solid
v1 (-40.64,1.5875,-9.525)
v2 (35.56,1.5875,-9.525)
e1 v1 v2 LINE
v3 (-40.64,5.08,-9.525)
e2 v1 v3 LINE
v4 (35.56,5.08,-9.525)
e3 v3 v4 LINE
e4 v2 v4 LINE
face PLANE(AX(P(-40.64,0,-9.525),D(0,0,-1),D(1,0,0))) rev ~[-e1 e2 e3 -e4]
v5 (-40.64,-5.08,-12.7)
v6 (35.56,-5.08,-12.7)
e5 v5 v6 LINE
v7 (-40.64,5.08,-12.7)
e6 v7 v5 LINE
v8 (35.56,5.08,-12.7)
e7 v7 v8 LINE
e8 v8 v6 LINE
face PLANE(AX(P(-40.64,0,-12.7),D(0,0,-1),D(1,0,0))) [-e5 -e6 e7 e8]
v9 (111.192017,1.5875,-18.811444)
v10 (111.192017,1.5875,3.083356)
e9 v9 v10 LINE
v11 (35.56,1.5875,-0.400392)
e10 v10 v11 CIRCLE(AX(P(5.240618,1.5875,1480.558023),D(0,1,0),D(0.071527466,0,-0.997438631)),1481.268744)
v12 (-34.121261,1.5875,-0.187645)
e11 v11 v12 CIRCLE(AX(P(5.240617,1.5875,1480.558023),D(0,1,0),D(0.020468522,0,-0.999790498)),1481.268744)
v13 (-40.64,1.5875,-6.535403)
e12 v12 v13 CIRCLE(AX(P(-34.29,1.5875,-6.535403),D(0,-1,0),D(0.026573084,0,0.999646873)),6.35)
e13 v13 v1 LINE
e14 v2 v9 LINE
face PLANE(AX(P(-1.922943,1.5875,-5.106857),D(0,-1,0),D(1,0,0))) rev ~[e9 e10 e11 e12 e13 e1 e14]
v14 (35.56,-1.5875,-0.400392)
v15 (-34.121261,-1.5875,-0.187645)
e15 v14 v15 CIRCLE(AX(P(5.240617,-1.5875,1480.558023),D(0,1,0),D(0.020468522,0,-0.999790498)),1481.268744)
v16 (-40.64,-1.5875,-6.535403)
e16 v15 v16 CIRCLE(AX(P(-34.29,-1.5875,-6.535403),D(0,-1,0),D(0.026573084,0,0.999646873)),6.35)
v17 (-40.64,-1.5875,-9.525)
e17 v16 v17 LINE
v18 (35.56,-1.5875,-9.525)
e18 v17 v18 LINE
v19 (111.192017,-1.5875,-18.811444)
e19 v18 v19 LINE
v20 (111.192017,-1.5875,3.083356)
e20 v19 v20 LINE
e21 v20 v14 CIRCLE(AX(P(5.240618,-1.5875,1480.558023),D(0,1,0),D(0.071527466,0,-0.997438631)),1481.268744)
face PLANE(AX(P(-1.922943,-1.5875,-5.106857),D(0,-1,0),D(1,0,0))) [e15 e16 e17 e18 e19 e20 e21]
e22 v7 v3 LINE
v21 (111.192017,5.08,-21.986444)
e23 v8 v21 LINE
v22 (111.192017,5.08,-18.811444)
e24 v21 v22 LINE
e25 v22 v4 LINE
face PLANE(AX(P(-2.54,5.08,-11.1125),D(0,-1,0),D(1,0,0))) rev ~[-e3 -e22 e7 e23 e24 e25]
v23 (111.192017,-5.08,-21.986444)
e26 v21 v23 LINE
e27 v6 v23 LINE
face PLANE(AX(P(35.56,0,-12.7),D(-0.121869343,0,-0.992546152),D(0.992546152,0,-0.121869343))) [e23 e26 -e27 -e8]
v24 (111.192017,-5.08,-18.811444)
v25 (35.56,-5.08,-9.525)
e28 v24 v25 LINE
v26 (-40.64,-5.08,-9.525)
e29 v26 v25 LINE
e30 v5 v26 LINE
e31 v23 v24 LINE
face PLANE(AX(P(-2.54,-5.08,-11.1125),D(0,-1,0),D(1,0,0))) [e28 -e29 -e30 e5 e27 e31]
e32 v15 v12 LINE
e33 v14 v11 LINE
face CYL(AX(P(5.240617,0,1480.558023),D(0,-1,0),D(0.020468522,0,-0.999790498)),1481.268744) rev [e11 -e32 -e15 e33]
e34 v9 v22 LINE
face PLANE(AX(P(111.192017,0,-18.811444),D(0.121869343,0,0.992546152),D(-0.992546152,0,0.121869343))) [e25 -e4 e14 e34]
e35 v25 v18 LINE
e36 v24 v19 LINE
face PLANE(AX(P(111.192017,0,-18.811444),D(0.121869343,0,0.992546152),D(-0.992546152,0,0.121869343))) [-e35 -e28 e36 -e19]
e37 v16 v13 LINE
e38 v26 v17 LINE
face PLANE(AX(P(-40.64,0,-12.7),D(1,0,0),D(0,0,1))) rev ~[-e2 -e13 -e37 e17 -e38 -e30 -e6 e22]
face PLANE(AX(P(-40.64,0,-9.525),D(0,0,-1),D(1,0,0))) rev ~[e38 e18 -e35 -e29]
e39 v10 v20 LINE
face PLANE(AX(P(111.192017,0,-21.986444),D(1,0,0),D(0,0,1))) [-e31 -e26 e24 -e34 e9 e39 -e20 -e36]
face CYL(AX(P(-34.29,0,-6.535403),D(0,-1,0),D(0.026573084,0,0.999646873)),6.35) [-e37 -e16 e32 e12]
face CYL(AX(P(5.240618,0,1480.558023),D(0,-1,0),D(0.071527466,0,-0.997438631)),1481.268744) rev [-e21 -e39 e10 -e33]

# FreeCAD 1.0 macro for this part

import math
import FreeCAD as App
import Part
import Sketcher
Q = App.Units.Quantity


def add_polygon(sketch, points):
    """Adds a closed chain of lines whose ends are joined by coincident constraints."""
    first, n = sketch.GeometryCount, len(points)
    for a, b in zip(points, points[1:] + points[:1]):
        sketch.addGeometry(Part.LineSegment(App.Vector(*a, 0), App.Vector(*b, 0)), False)
    for i in range(n):
        sketch.addConstraint(Sketcher.Constraint("Coincident", first + i, 2, first + (i + 1) % n, 1))

doc = App.newDocument("Part")
body = doc.addObject("PartDesign::Body", "Body")

# Sketch on XZ plane
sketch1 = doc.addObject("Sketcher::SketchObject", "Sketch")
body.addObject(sketch1)
sketch1.AttachmentSupport = (doc.XZ_Plane, [""])
sketch1.MapMode = "FlatFace"
add_polygon(sketch1, [(-40.64, -9.525), (-40.64, -12.7), (35.56, -12.7), (111.192017, -21.986444), (111.192017, -18.811444), (35.56, -9.525)])  # lines 0-5
sketch1.addConstraint(Sketcher.Constraint("Vertical", 0))
sketch1.addConstraint(Sketcher.Constraint("Horizontal", 1))
sketch1.addConstraint(Sketcher.Constraint("Vertical", 3))
sketch1.addConstraint(Sketcher.Constraint("Horizontal", 5))
sketch1.addConstraint(Sketcher.Constraint("Parallel", 2, 4))
sketch1.addConstraint(Sketcher.Constraint("Vertical", 1, 2, 4, 2))
sketch1.addConstraint(Sketcher.Constraint("DistanceX", 1, 1, 1, 2, Q("3 in")))
sketch1.addConstraint(Sketcher.Constraint("Distance", 2, Q("3 in")))
sketch1.addConstraint(Sketcher.Constraint("Angle", 2, Q("-7 deg")))
sketch1.addConstraint(Sketcher.Constraint("DistanceX", 0, 2, -1, 1, Q("1.6 in")))
sketch1.addConstraint(Sketcher.Constraint("DistanceY", 0, 2, -1, 1, Q("0.5 in")))
sketch1.addConstraint(Sketcher.Constraint("DistanceY", 0, 2, 0, 1, Q("0.125 in")))
pad1 = doc.addObject("PartDesign::Pad", "Pad")
body.addObject(pad1)
pad1.Profile = sketch1
pad1.Length = Q("0.4 in")
pad1.Midplane = True

# Sketch on XZ plane
sketch2 = doc.addObject("Sketcher::SketchObject", "Sketch001")
body.addObject(sketch2)
sketch2.AttachmentSupport = (doc.XZ_Plane, [""])
sketch2.MapMode = "FlatFace"
sketch2.addGeometry(Part.LineSegment(App.Vector(-40.64, -6.535403, 0), App.Vector(-40.64, -9.525, 0)), False)
sketch2.addGeometry(Part.LineSegment(App.Vector(-40.64, -9.525, 0), App.Vector(35.56, -9.525, 0)), False)
sketch2.addGeometry(Part.LineSegment(App.Vector(35.56, -9.525, 0), App.Vector(111.192017, -18.811444, 0)), False)
sketch2.addGeometry(Part.LineSegment(App.Vector(111.192017, -18.811444, 0), App.Vector(111.192017, 3.083356, 0)), False)
sketch2.addGeometry(Part.ArcOfCircle(Part.Circle(App.Vector(5.240618, 1480.558023, 0), App.Vector(0, 0, 1), 1481.268744), math.radians(-88.827158), math.radians(-85.898275)), False)
sketch2.addGeometry(Part.ArcOfCircle(Part.Circle(App.Vector(5.240617, 1480.558023, 0), App.Vector(0, 0, 1), 1481.268744), math.radians(-91.522705), math.radians(-88.827158)), False)
sketch2.addGeometry(Part.ArcOfCircle(Part.Circle(App.Vector(-34.29, -6.535403, 0), App.Vector(0, 0, 1), 6.35), math.radians(88.477295), math.radians(180)), False)
sketch2.addConstraint(Sketcher.Constraint("Coincident", 0, 2, 1, 1))
sketch2.addConstraint(Sketcher.Constraint("Coincident", 1, 2, 2, 1))
sketch2.addConstraint(Sketcher.Constraint("Coincident", 2, 2, 3, 1))
sketch2.addConstraint(Sketcher.Constraint("Coincident", 3, 2, 4, 2))
sketch2.addConstraint(Sketcher.Constraint("Coincident", 4, 1, 5, 2))
sketch2.addConstraint(Sketcher.Constraint("Tangent", 5, 1, 6, 1))
sketch2.addConstraint(Sketcher.Constraint("Tangent", 6, 2, 0, 1))
sketch2.addConstraint(Sketcher.Constraint("Vertical", 0))
sketch2.addConstraint(Sketcher.Constraint("Horizontal", 1))
sketch2.addConstraint(Sketcher.Constraint("Vertical", 3))
sketch2.addConstraint(Sketcher.Constraint("Coincident", 5, 3, 4, 3))
sketch2.addConstraint(Sketcher.Constraint("Vertical", 1, 2, 4, 1))
sketch2.addConstraint(Sketcher.Constraint("DistanceX", 1, 1, 1, 2, Q("3 in")))
sketch2.addConstraint(Sketcher.Constraint("Radius", 6, Q("0.25 in")))
sketch2.addConstraint(Sketcher.Constraint("Distance", 2, Q("3 in")))
sketch2.addConstraint(Sketcher.Constraint("Angle", 2, Q("-7 deg")))
sketch2.addConstraint(Sketcher.Constraint("DistanceX", 0, 2, -1, 1, Q("1.6 in")))
sketch2.addConstraint(Sketcher.Constraint("DistanceY", 3, 1, 3, 2, Q("0.862 in")))
sketch2.addConstraint(Sketcher.Constraint("DistanceY", 0, 2, -1, 1, Q("0.375 in")))
sketch2.addConstraint(Sketcher.Constraint("Radius", 4, 1481.268744))
sketch2.addConstraint(Sketcher.Constraint("DistanceX", 5, 3, 2, 2, 105.951399))
pad2 = doc.addObject("PartDesign::Pad", "Pad001")
body.addObject(pad2)
pad2.Profile = sketch2
pad2.Length = Q("0.125 in")
pad2.Midplane = True

doc.recompute()
